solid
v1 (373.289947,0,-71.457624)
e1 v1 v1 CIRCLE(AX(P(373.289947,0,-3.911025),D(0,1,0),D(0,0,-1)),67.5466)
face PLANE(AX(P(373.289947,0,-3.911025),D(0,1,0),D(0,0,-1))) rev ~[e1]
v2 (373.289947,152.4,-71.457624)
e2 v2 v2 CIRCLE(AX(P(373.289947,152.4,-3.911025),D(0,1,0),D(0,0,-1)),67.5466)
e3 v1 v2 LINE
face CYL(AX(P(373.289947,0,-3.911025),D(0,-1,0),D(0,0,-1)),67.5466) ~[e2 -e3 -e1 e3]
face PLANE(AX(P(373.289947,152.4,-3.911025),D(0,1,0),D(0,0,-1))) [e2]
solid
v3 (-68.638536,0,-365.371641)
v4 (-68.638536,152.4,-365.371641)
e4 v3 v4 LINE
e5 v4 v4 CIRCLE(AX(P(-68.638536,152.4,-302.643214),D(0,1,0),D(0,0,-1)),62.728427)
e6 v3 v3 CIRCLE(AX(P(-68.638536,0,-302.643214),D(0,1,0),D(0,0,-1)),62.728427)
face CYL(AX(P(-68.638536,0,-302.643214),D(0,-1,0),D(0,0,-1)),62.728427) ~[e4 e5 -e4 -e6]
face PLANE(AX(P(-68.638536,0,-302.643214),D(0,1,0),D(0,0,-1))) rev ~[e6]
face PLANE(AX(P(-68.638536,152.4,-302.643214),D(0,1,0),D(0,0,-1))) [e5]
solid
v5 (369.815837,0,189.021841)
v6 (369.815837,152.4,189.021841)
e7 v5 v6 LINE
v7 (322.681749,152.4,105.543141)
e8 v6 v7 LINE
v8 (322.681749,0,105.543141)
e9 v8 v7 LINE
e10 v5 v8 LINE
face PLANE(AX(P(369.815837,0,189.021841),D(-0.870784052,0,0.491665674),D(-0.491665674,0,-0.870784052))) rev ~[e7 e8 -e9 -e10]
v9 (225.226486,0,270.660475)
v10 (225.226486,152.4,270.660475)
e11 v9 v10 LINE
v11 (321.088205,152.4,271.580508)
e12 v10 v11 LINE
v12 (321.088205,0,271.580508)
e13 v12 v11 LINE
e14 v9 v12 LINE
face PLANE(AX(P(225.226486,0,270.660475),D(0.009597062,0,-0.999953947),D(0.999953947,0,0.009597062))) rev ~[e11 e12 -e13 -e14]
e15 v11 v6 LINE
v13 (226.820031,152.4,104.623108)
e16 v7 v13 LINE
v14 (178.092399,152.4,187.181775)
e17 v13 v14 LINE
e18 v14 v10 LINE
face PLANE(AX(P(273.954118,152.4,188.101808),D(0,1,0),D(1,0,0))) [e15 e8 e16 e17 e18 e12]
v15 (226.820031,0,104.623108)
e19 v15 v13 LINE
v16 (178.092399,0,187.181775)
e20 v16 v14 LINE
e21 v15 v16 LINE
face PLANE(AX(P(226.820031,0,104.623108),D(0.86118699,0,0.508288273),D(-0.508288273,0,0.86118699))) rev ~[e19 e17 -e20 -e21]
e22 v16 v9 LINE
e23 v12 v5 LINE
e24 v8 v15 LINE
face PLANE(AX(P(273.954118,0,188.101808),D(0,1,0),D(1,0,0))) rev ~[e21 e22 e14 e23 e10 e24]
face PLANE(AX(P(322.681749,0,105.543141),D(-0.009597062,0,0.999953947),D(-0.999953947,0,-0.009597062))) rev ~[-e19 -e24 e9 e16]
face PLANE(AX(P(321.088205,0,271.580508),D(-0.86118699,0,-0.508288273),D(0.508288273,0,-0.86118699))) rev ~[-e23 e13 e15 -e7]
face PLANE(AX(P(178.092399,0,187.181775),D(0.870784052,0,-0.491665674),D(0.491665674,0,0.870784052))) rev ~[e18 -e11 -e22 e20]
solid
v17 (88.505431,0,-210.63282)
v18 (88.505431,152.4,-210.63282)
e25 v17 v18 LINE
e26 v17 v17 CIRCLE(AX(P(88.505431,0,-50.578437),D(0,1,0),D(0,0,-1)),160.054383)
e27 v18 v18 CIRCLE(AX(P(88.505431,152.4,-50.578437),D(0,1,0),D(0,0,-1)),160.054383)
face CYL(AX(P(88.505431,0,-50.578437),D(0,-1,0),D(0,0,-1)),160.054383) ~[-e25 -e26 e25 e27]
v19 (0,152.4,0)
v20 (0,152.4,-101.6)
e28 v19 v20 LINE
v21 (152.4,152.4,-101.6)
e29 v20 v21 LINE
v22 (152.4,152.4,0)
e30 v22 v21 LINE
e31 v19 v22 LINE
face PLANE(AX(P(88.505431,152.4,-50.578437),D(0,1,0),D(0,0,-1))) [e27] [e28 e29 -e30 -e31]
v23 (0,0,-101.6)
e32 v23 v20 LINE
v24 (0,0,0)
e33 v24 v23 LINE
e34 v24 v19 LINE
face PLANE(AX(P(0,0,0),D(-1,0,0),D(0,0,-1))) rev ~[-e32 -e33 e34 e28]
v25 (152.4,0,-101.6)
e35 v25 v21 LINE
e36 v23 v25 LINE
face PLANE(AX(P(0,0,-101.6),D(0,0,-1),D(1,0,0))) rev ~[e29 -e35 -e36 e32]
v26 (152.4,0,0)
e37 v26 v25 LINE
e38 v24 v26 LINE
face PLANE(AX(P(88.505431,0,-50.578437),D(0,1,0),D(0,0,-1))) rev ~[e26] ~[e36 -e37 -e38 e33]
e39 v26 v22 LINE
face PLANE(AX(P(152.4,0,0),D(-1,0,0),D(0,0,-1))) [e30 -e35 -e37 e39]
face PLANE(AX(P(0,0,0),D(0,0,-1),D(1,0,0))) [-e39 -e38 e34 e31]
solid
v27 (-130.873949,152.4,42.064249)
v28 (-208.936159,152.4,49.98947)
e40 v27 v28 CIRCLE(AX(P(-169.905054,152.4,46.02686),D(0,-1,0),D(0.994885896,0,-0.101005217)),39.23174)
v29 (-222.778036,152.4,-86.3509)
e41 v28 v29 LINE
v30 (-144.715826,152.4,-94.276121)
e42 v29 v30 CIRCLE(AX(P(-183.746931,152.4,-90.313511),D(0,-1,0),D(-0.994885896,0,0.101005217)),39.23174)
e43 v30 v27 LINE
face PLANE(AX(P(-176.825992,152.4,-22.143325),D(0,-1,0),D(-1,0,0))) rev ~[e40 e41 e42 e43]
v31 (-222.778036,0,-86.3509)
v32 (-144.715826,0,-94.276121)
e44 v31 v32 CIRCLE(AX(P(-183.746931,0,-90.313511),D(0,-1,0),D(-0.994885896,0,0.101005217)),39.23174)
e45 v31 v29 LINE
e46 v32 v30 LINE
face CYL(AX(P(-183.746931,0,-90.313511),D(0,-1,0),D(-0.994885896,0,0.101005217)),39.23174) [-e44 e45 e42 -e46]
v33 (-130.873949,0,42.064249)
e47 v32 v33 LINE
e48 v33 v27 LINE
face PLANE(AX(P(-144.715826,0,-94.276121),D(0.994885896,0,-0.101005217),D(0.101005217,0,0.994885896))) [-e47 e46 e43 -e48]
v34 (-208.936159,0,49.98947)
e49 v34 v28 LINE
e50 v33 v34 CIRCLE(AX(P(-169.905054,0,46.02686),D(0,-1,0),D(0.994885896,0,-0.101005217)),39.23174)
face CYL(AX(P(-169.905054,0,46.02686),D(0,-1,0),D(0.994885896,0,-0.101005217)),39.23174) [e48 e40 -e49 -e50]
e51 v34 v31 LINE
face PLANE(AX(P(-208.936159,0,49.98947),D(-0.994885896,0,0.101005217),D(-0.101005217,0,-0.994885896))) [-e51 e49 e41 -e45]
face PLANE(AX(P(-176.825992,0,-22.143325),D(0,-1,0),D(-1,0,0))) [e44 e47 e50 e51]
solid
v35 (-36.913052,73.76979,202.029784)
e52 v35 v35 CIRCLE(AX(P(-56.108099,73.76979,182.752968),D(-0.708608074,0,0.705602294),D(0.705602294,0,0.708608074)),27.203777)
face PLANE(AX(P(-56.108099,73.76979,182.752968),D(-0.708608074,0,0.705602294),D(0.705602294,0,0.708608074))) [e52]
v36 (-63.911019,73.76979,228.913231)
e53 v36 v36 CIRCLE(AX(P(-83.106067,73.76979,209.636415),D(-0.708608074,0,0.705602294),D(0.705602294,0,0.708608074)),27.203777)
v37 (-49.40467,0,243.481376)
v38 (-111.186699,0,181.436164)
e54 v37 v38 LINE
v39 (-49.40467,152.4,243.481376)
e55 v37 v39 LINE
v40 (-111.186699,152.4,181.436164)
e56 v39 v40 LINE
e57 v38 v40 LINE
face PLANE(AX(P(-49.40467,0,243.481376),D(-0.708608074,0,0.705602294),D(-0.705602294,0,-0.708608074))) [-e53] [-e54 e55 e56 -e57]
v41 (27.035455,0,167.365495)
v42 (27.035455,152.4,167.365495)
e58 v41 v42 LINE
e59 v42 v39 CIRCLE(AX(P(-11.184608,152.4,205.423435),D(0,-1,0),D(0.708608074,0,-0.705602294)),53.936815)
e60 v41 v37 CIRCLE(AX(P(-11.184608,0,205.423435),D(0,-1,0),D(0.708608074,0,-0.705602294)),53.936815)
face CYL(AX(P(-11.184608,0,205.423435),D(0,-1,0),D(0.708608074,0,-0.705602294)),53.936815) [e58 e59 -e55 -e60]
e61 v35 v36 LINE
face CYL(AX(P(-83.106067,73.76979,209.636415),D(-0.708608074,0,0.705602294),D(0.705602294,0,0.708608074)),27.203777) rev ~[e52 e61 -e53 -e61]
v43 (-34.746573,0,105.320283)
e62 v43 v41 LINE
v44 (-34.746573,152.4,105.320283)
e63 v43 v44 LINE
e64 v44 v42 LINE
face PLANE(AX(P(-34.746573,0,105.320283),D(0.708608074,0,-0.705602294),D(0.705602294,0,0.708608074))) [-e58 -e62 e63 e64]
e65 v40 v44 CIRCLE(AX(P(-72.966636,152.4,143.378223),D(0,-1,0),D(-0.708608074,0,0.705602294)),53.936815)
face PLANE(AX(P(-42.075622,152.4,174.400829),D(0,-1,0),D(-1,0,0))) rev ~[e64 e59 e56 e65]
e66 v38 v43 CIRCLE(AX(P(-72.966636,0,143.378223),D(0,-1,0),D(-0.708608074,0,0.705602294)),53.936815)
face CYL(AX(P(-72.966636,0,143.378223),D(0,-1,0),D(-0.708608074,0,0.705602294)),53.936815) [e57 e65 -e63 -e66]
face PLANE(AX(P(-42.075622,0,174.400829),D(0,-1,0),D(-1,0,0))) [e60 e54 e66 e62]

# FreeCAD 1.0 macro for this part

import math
import FreeCAD as App
import Part
import Sketcher
Q = App.Units.Quantity

doc = App.newDocument("Part")
body = doc.addObject("PartDesign::Body", "Body")

sketch1 = body.newObject("Sketcher::SketchObject", "Sketch")
sketch1.AttachmentSupport = (doc.getObject("XZ_Plane"), [""])
sketch1.MapMode = "FlatFace"
sketch1.addGeometry(Part.Circle(App.Vector(88.505431, -50.578437, 0), App.Vector(0, 0, 1), 160.054383), False)
sketch1.addGeometry(Part.LineSegment(App.Vector(152.4, 0, 0), App.Vector(0, 0, 0)), False)
sketch1.addGeometry(Part.LineSegment(App.Vector(0, 0, 0), App.Vector(0, -101.6, 0)), False)
sketch1.addGeometry(Part.LineSegment(App.Vector(0, -101.6, 0), App.Vector(152.4, -101.6, 0)), False)
sketch1.addGeometry(Part.LineSegment(App.Vector(152.4, -101.6, 0), App.Vector(152.4, 0, 0)), False)
sketch1.addConstraint(Sketcher.Constraint("Coincident", 1, 2, 2, 1))
sketch1.addConstraint(Sketcher.Constraint("Coincident", 2, 2, 3, 1))
sketch1.addConstraint(Sketcher.Constraint("Coincident", 3, 2, 4, 1))
sketch1.addConstraint(Sketcher.Constraint("Coincident", 4, 2, 1, 1))
sketch1.addConstraint(Sketcher.Constraint("Horizontal", 1))
sketch1.addConstraint(Sketcher.Constraint("Vertical", 2))
sketch1.addConstraint(Sketcher.Constraint("Horizontal", 3))
sketch1.addConstraint(Sketcher.Constraint("Vertical", 4))
sketch1.addConstraint(Sketcher.Constraint("Coincident", 1, 2, -1, 1))
sketch1.addConstraint(Sketcher.Constraint("DistanceX", 1, 2, 1, 1, Q("6 in")))
sketch1.addConstraint(Sketcher.Constraint("DistanceY", 2, 2, 2, 1, Q("4 in")))
sketch1.addConstraint(Sketcher.Constraint("Diameter", 0, 320.108766))
sketch1.addConstraint(Sketcher.Constraint("DistanceX", -1, 1, 0, 3, 88.505431))
sketch1.addConstraint(Sketcher.Constraint("DistanceY", 0, 3, -1, 1, 50.578437))
pad1 = body.newObject("PartDesign::Pad", "Pad")
pad1.Profile = sketch1
pad1.Length = Q("6 in")
pad1.Reversed = True
body2 = doc.addObject("PartDesign::Body", "Body001")

sketch2 = body2.newObject("Sketcher::SketchObject", "Sketch001")
sketch2.AttachmentSupport = (doc.getObject("XZ_Plane001"), [""])
sketch2.MapMode = "FlatFace"
sketch2.addGeometry(Part.Circle(App.Vector(373.289947, -3.911025, 0), App.Vector(0, 0, 1), 67.5466), False)
sketch2.addConstraint(Sketcher.Constraint("Diameter", 0, 135.093199))
sketch2.addConstraint(Sketcher.Constraint("DistanceX", -1, 1, 0, 3, 373.289947))
sketch2.addConstraint(Sketcher.Constraint("DistanceY", 0, 3, -1, 1, 3.911025))
pad2 = body2.newObject("PartDesign::Pad", "Pad001")
pad2.Profile = sketch2
pad2.Length = Q("6 in")
pad2.Reversed = True
body3 = doc.addObject("PartDesign::Body", "Body002")

sketch3 = body3.newObject("Sketcher::SketchObject", "Sketch002")
sketch3.AttachmentSupport = (doc.getObject("XZ_Plane002"), [""])
sketch3.MapMode = "FlatFace"
sketch3.addGeometry(Part.Circle(App.Vector(-68.638536, -302.643214, 0), App.Vector(0, 0, 1), 62.728427), False)
sketch3.addConstraint(Sketcher.Constraint("Diameter", 0, 125.456855))
sketch3.addConstraint(Sketcher.Constraint("DistanceX", 0, 3, -1, 1, 68.638536))
sketch3.addConstraint(Sketcher.Constraint("DistanceY", 0, 3, -1, 1, 302.643214))
pad3 = body3.newObject("PartDesign::Pad", "Pad002")
pad3.Profile = sketch3
pad3.Length = Q("6 in")
pad3.Reversed = True
body4 = doc.addObject("PartDesign::Body", "Body003")

sketch4 = body4.newObject("Sketcher::SketchObject", "Sketch003")
sketch4.AttachmentSupport = (doc.getObject("XZ_Plane003"), [""])
sketch4.MapMode = "FlatFace"
sketch4.addGeometry(Part.LineSegment(App.Vector(225.226486, 270.660475, 0), App.Vector(321.088205, 271.580508, 0)), False)
sketch4.addGeometry(Part.LineSegment(App.Vector(321.088205, 271.580508, 0), App.Vector(369.815837, 189.021841, 0)), False)
sketch4.addGeometry(Part.LineSegment(App.Vector(369.815837, 189.021841, 0), App.Vector(322.681749, 105.543141, 0)), False)
sketch4.addGeometry(Part.LineSegment(App.Vector(322.681749, 105.543141, 0), App.Vector(226.820031, 104.623108, 0)), False)
sketch4.addGeometry(Part.LineSegment(App.Vector(226.820031, 104.623108, 0), App.Vector(178.092399, 187.181775, 0)), False)
sketch4.addGeometry(Part.LineSegment(App.Vector(178.092399, 187.181775, 0), App.Vector(225.226486, 270.660475, 0)), False)
sketch4.addConstraint(Sketcher.Constraint("Coincident", 0, 2, 1, 1))
sketch4.addConstraint(Sketcher.Constraint("Coincident", 1, 2, 2, 1))
sketch4.addConstraint(Sketcher.Constraint("Coincident", 2, 2, 3, 1))
sketch4.addConstraint(Sketcher.Constraint("Coincident", 3, 2, 4, 1))
sketch4.addConstraint(Sketcher.Constraint("Coincident", 4, 2, 5, 1))
sketch4.addConstraint(Sketcher.Constraint("Coincident", 5, 2, 0, 1))
sketch4.addConstraint(Sketcher.Constraint("Parallel", 0, 3))
sketch4.addConstraint(Sketcher.Constraint("Parallel", 1, 4))
sketch4.addConstraint(Sketcher.Constraint("Parallel", 2, 5))
sketch4.addConstraint(Sketcher.Constraint("Equal", 0, 1))
sketch4.addConstraint(Sketcher.Constraint("Equal", 1, 2))
sketch4.addConstraint(Sketcher.Constraint("Equal", 2, 3))
sketch4.addConstraint(Sketcher.Constraint("DistanceX", -1, 1, 4, 2, 178.092399))
sketch4.addConstraint(Sketcher.Constraint("DistanceY", 2, 2, 1, 2, 83.4787))
sketch4.addConstraint(Sketcher.Constraint("DistanceY", 3, 2, 0, 2, 166.957401))
sketch4.addConstraint(Sketcher.Constraint("DistanceY", -1, 1, 0, 2, 271.580508))
sketch4.addConstraint(Sketcher.Constraint("DistanceY", -1, 1, 1, 2, 189.021841))
sketch4.addConstraint(Sketcher.Constraint("DistanceX", -1, 1, 2, 2, 322.681749))
pad4 = body4.newObject("PartDesign::Pad", "Pad003")
pad4.Profile = sketch4
pad4.Length = Q("6 in")
pad4.Reversed = True
body5 = doc.addObject("PartDesign::Body", "Body004")

sketch5 = body5.newObject("Sketcher::SketchObject", "Sketch004")
sketch5.AttachmentSupport = (doc.getObject("XZ_Plane004"), [""])
sketch5.MapMode = "FlatFace"
sketch5.addGeometry(Part.LineSegment(App.Vector(-130.873949, 42.064249, 0), App.Vector(-144.715826, -94.276121, 0)), False)
sketch5.addGeometry(Part.ArcOfCircle(Part.Circle(App.Vector(-183.746931, -90.313511, 0), App.Vector(0, 0, 1), 39.23174), math.radians(174.202942), math.radians(354.202942)), False)
sketch5.addGeometry(Part.LineSegment(App.Vector(-222.778036, -86.3509, 0), App.Vector(-208.936159, 49.98947, 0)), False)
sketch5.addGeometry(Part.ArcOfCircle(Part.Circle(App.Vector(-169.905054, 46.02686, 0), App.Vector(0, 0, 1), 39.23174), math.radians(-5.797058), math.radians(174.202942)), False)
sketch5.addConstraint(Sketcher.Constraint("Tangent", 0, 2, 1, 2))
sketch5.addConstraint(Sketcher.Constraint("Tangent", 1, 1, 2, 1))
sketch5.addConstraint(Sketcher.Constraint("Tangent", 2, 2, 3, 2))
sketch5.addConstraint(Sketcher.Constraint("Tangent", 3, 1, 0, 1))
sketch5.addConstraint(Sketcher.Constraint("Equal", 1, 3))
sketch5.addConstraint(Sketcher.Constraint("Radius", 1, 39.23174))
sketch5.addConstraint(Sketcher.Constraint("DistanceY", 1, 1, -1, 1, 86.3509))
sketch5.addConstraint(Sketcher.Constraint("DistanceX", 1, 3, -1, 1, 183.746931))
sketch5.addConstraint(Sketcher.Constraint("DistanceY", 1, 3, -1, 1, 90.313511))
sketch5.addConstraint(Sketcher.Constraint("DistanceY", -1, 1, 3, 3, 46.02686))
pad5 = body5.newObject("PartDesign::Pad", "Pad004")
pad5.Profile = sketch5
pad5.Length = Q("6 in")
pad5.Reversed = True
body6 = doc.addObject("PartDesign::Body", "Body005")

sketch6 = body6.newObject("Sketcher::SketchObject", "Sketch005")
sketch6.AttachmentSupport = (doc.getObject("XZ_Plane005"), [""])
sketch6.MapMode = "FlatFace"
sketch6.addGeometry(Part.LineSegment(App.Vector(-111.186699, 181.436164, 0), App.Vector(-49.40467, 243.481376, 0)), False)
sketch6.addGeometry(Part.ArcOfCircle(Part.Circle(App.Vector(-11.184608, 205.423435, 0), App.Vector(0, 0, 1), 53.936815), math.radians(-44.878223), math.radians(135.121777)), False)
sketch6.addGeometry(Part.LineSegment(App.Vector(27.035455, 167.365495, 0), App.Vector(-34.746573, 105.320283, 0)), False)
sketch6.addGeometry(Part.ArcOfCircle(Part.Circle(App.Vector(-72.966636, 143.378223, 0), App.Vector(0, 0, 1), 53.936815), math.radians(135.121777), math.radians(315.121777)), False)
sketch6.addConstraint(Sketcher.Constraint("Tangent", 0, 2, 1, 2))
sketch6.addConstraint(Sketcher.Constraint("Tangent", 1, 1, 2, 1))
sketch6.addConstraint(Sketcher.Constraint("Tangent", 2, 2, 3, 2))
sketch6.addConstraint(Sketcher.Constraint("Tangent", 3, 1, 0, 1))
sketch6.addConstraint(Sketcher.Constraint("Equal", 1, 3))
sketch6.addConstraint(Sketcher.Constraint("Radius", 1, 53.936815))
sketch6.addConstraint(Sketcher.Constraint("DistanceX", 3, 1, -1, 1, 111.186699))
sketch6.addConstraint(Sketcher.Constraint("Distance", 0, 87.559279))
sketch6.addConstraint(Sketcher.Constraint("DistanceX", 0, 2, -1, 1, 49.40467))
sketch6.addConstraint(Sketcher.Constraint("DistanceY", -1, 1, 1, 3, 205.423435))
pad6 = body6.newObject("PartDesign::Pad", "Pad005")
pad6.Profile = sketch6
pad6.Length = Q("6 in")
pad6.Reversed = True

sketch7 = body6.newObject("Sketcher::SketchObject", "Sketch006")
sketch7.Placement = App.Placement(App.Vector(-146.546928, 0, 145.925304), App.Rotation(App.Vector(0.705602294, 0, 0.708608074), App.Vector(0, 1, 0), App.Vector(-0.708608074, 0, 0.705602294), "ZXY"))
sketch7.addGeometry(Part.Circle(App.Vector(89.910225, 73.76979, 0), App.Vector(0, 0, 1), 27.203777), False)
sketch7.addConstraint(Sketcher.Constraint("Diameter", 0, 54.407554))
sketch7.addConstraint(Sketcher.Constraint("DistanceY", -1, 1, 0, 3, 73.76979))
sketch7.addConstraint(Sketcher.Constraint("DistanceX", -1, 1, 0, 3, 89.910225))
pocket1 = body6.newObject("PartDesign::Pocket", "Pocket")
pocket1.Profile = sketch7
pocket1.Length = Q("3 in")
pocket1.Midplane = True

doc.recompute()
